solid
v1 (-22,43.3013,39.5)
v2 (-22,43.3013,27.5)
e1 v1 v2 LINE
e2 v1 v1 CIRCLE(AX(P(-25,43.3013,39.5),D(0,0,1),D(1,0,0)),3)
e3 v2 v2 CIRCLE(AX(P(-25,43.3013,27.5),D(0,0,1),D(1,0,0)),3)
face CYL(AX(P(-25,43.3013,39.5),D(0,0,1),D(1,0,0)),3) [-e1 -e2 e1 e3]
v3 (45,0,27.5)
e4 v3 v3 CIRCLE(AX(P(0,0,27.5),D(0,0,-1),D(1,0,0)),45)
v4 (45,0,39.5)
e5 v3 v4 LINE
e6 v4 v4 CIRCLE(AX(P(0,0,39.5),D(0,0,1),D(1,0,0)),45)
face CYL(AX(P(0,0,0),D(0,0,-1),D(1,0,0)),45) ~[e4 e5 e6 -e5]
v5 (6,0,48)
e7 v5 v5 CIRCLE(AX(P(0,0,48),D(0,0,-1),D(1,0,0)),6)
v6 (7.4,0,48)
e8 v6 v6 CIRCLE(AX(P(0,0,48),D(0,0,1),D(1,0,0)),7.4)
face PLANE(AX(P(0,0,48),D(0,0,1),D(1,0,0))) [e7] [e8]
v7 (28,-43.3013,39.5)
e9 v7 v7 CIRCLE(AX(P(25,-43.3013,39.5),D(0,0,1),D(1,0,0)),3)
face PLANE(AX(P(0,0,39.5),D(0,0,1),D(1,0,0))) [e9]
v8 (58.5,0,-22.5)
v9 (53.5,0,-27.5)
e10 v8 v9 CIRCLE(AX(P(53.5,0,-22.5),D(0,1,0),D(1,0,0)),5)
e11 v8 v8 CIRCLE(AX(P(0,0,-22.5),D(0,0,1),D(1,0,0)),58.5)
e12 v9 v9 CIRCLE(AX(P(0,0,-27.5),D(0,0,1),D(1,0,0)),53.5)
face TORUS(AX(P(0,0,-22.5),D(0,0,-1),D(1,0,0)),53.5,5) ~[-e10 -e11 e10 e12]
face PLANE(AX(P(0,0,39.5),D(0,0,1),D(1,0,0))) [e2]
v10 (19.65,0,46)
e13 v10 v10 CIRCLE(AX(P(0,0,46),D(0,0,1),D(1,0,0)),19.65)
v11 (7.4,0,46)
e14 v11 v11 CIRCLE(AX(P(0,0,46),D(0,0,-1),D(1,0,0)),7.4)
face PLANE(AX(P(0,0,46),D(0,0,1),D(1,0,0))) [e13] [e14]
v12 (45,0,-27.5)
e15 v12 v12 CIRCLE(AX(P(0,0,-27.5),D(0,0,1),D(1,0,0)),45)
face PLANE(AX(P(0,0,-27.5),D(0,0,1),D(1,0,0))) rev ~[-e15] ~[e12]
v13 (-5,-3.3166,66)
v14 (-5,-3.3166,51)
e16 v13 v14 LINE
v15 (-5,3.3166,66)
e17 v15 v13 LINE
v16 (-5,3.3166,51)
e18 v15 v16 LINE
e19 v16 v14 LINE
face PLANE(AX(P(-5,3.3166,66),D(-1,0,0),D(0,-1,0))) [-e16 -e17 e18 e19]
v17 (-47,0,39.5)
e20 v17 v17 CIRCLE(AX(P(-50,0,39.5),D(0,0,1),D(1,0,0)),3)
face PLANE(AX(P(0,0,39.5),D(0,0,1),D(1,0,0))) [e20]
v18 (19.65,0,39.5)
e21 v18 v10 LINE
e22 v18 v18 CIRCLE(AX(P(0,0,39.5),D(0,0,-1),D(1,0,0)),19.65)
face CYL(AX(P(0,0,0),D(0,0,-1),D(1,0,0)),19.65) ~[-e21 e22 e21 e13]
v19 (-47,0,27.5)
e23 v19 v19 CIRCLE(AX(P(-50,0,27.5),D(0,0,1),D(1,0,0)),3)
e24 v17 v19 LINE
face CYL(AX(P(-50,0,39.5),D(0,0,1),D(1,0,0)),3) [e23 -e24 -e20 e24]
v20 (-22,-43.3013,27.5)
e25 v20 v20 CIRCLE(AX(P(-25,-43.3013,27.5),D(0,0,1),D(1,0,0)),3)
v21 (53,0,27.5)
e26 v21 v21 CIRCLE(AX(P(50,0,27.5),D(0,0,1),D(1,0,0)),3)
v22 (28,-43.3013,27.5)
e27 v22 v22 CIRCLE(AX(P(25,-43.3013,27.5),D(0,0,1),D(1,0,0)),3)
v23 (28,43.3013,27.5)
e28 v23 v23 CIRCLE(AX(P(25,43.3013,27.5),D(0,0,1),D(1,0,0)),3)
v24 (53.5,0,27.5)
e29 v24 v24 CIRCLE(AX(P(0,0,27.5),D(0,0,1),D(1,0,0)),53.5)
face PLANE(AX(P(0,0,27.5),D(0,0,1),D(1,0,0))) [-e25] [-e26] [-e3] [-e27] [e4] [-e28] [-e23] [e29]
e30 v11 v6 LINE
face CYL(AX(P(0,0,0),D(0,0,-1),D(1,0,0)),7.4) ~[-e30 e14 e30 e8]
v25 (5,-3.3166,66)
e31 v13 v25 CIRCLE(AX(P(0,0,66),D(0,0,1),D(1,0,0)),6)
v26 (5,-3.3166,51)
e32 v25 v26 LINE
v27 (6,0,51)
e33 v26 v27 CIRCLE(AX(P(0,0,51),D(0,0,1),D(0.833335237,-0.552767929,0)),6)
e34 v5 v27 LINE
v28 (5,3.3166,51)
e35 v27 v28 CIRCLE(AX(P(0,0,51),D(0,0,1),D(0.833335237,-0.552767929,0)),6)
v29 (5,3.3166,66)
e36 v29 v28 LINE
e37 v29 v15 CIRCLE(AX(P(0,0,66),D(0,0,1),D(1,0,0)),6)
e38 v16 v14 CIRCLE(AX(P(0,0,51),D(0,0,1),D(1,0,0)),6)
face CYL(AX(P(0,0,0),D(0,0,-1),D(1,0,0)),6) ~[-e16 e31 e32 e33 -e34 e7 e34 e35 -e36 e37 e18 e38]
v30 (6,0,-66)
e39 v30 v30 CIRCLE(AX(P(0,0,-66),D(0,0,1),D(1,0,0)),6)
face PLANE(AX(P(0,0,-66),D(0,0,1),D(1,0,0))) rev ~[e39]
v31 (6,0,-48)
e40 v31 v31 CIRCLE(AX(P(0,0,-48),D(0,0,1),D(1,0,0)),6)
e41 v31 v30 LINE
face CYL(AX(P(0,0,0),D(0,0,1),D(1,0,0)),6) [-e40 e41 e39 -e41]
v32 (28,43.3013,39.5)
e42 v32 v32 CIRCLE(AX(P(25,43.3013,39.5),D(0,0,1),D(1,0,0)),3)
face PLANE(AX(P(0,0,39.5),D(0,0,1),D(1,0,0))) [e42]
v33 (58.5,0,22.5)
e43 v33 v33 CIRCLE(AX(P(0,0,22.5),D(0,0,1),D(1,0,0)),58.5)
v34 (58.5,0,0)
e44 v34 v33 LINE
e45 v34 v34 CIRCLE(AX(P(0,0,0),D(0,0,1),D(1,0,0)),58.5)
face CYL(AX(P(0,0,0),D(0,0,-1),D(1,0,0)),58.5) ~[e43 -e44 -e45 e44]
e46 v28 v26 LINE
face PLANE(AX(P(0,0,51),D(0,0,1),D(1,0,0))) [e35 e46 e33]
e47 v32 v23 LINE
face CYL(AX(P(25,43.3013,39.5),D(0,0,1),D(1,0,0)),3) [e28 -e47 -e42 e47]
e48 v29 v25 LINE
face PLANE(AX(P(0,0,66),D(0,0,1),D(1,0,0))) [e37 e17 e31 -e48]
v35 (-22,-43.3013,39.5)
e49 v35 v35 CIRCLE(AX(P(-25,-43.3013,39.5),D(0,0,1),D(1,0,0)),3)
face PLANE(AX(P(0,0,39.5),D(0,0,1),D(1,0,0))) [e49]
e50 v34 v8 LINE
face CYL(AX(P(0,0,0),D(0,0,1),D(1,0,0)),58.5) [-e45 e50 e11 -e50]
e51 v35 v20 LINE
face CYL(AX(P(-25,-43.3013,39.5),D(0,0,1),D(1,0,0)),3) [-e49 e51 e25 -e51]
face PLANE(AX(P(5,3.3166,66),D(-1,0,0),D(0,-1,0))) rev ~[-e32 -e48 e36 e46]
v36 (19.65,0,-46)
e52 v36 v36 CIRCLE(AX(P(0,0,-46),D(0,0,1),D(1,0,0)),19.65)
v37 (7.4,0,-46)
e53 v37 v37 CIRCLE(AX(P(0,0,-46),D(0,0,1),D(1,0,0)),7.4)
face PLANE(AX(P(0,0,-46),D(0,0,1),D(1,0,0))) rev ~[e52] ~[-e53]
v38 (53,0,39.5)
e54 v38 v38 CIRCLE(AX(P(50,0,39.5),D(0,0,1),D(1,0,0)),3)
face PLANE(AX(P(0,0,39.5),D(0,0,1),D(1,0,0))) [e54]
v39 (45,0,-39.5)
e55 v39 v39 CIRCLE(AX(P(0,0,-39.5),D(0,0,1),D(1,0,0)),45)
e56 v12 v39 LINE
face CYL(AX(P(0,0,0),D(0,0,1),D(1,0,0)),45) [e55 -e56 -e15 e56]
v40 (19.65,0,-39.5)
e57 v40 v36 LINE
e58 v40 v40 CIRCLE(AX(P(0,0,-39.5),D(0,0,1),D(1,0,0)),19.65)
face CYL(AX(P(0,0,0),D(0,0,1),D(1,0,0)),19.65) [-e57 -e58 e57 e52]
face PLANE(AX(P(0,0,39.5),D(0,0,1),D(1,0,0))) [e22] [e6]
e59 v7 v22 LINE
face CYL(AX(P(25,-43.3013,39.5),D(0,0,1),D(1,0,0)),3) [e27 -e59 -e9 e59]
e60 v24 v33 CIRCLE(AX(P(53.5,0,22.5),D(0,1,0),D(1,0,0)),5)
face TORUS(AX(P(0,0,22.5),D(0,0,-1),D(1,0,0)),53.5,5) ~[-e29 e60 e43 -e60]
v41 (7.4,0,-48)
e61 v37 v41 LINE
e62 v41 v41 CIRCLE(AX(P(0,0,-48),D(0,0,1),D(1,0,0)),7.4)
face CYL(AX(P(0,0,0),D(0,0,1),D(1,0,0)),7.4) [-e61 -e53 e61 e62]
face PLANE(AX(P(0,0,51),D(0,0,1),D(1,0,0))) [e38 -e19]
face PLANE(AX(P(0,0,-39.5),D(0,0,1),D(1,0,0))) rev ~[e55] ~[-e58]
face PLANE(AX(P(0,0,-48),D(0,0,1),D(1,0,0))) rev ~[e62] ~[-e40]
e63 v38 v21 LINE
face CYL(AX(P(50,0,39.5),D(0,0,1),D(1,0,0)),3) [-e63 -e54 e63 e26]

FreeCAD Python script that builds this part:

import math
import FreeCAD as App
import Part
import Sketcher


def edges_at(feature, points):
    """Names of the edges that pass closest to the given points."""
    edges = feature.Shape.Edges
    near = lambda p: min(range(len(edges)), key=lambda i: edges[i].distToShape(Part.Vertex(*p))[0])
    return sorted({f"Edge{near(p) + 1}" for p in points})

doc = App.newDocument("Part")
params = doc.addObject("Spreadsheet::Sheet", "Params")
for row, (alias, value) in enumerate([
    ("sketch1_diameter", "12 mm"),
    ("pad1_length", "132 mm"),
    ("sketch2_diameter", "14.8 mm"),
    ("pad2_length", "96 mm"),
    ("sketch3_diameter", "39.3 mm"),
    ("sketch3_diameter2", "12 mm"),
    ("pad3_length", "92 mm"),
    ("sketch4_diameter", "90 mm"),
    ("pad4_length", "79 mm"),
    ("sketch5_diameter", "117 mm"),
    ("pad5_length", "55 mm"),
    ("fillet_radius", "5 mm"),
    ("sketch6_diameter", "6 mm"),
    ("pad6_length", "12 mm"),
    ("sketch7_radius", "6 mm"),
    ("pocket1_length", "15 mm"),
], start=1):
    params.set(f"A{row}", alias)
    params.set(f"B{row}", "=" + value)
    params.setAlias(f"B{row}", alias)

body = doc.addObject("PartDesign::Body", "Body")

# Sketch on XY plane
sketch1 = body.newObject("Sketcher::SketchObject", "Sketch")
sketch1.AttachmentSupport = (doc.getObject("XY_Plane"), [""])
sketch1.MapMode = "FlatFace"
sketch1.addGeometry(Part.Circle(App.Vector(0, 0, 0), App.Vector(0, 0, 1), 6), False)
sketch1.addConstraint(Sketcher.Constraint("Coincident", 0, 3, -1, 1))
sketch1.addConstraint(Sketcher.Constraint("Diameter", 0, 12.0))
sketch1.setExpression("Constraints[1]", "Params.sketch1_diameter")
pad1 = body.newObject("PartDesign::Pad", "Pad")
pad1.Profile = sketch1
pad1.setExpression("Length", "Params.pad1_length")
pad1.Midplane = True

# Sketch on XY plane
sketch2 = body.newObject("Sketcher::SketchObject", "Sketch001")
sketch2.AttachmentSupport = (doc.getObject("XY_Plane"), [""])
sketch2.MapMode = "FlatFace"
sketch2.addGeometry(Part.Circle(App.Vector(0, 0, 0), App.Vector(0, 0, 1), 7), False)
sketch2.addConstraint(Sketcher.Constraint("Coincident", 0, 3, -1, 1))
sketch2.addConstraint(Sketcher.Constraint("Diameter", 0, 14.8))
sketch2.setExpression("Constraints[1]", "Params.sketch2_diameter")
pad2 = body.newObject("PartDesign::Pad", "Pad001")
pad2.Profile = sketch2
pad2.setExpression("Length", "Params.pad2_length")
pad2.Midplane = True

# Sketch on XY plane
sketch3 = body.newObject("Sketcher::SketchObject", "Sketch002")
sketch3.AttachmentSupport = (doc.getObject("XY_Plane"), [""])
sketch3.MapMode = "FlatFace"
sketch3.addGeometry(Part.Circle(App.Vector(0, 0, 0), App.Vector(0, 0, 1), 20), False)
sketch3.addGeometry(Part.Circle(App.Vector(0, 0, 0), App.Vector(0, 0, 1), 6), False)
sketch3.addConstraint(Sketcher.Constraint("Coincident", 0, 3, -1, 1))
sketch3.addConstraint(Sketcher.Constraint("Coincident", 1, 3, -1, 1))
sketch3.addConstraint(Sketcher.Constraint("Diameter", 0, 39.3))
sketch3.addConstraint(Sketcher.Constraint("Diameter", 1, 12.0))
sketch3.setExpression("Constraints[2]", "Params.sketch3_diameter")
sketch3.setExpression("Constraints[3]", "Params.sketch3_diameter2")
pad3 = body.newObject("PartDesign::Pad", "Pad002")
pad3.Profile = sketch3
pad3.setExpression("Length", "Params.pad3_length")
pad3.Midplane = True

# Sketch on XY plane
sketch4 = body.newObject("Sketcher::SketchObject", "Sketch003")
sketch4.AttachmentSupport = (doc.getObject("XY_Plane"), [""])
sketch4.MapMode = "FlatFace"
sketch4.addGeometry(Part.Circle(App.Vector(0, 0, 0), App.Vector(0, 0, 1), 45), False)
sketch4.addConstraint(Sketcher.Constraint("Coincident", 0, 3, -1, 1))
sketch4.addConstraint(Sketcher.Constraint("Diameter", 0, 90.0))
sketch4.setExpression("Constraints[1]", "Params.sketch4_diameter")
pad4 = body.newObject("PartDesign::Pad", "Pad003")
pad4.Profile = sketch4
pad4.setExpression("Length", "Params.pad4_length")
pad4.Midplane = True

# Sketch on XY plane
sketch5 = body.newObject("Sketcher::SketchObject", "Sketch004")
sketch5.AttachmentSupport = (doc.getObject("XY_Plane"), [""])
sketch5.MapMode = "FlatFace"
sketch5.addGeometry(Part.Circle(App.Vector(0, 0, 0), App.Vector(0, 0, 1), 58), False)
sketch5.addConstraint(Sketcher.Constraint("Coincident", 0, 3, -1, 1))
sketch5.addConstraint(Sketcher.Constraint("Diameter", 0, 117.0))
sketch5.setExpression("Constraints[1]", "Params.sketch5_diameter")
pad5 = body.newObject("PartDesign::Pad", "Pad004")
pad5.Profile = sketch5
pad5.setExpression("Length", "Params.pad5_length")
pad5.Midplane = True
doc.recompute()

fillet = body.newObject("PartDesign::Fillet", "Fillet")
fillet.Base = (pad5, edges_at(pad5, [(-58.5, 0, 27.5), (-58.5, 0, -27.5)]))
fillet.setExpression("Radius", "Params.fillet_radius")

# Sketch on XY plane
sketch6 = body.newObject("Sketcher::SketchObject", "Sketch005")
sketch6.AttachmentSupport = (doc.getObject("XY_Plane"), [""])
sketch6.MapMode = "FlatFace"
sketch6.AttachmentOffset = App.Placement(App.Vector(0, 0, 39.5), App.Rotation())
sketch6.addGeometry(Part.Circle(App.Vector(50, 0, 0), App.Vector(0, 0, 1), 3), False)
sketch6.addGeometry(Part.Circle(App.Vector(25, 43.3, 0), App.Vector(0, 0, 1), 3), False)
sketch6.addGeometry(Part.Circle(App.Vector(-25, 43.3, 0), App.Vector(0, 0, 1), 3), False)
sketch6.addGeometry(Part.Circle(App.Vector(-50, 0, 0), App.Vector(0, 0, 1), 3), False)
sketch6.addGeometry(Part.Circle(App.Vector(-25, -43.3, 0), App.Vector(0, 0, 1), 3), False)
sketch6.addGeometry(Part.Circle(App.Vector(25, -43.3, 0), App.Vector(0, 0, 1), 3), False)
sketch6.addConstraint(Sketcher.Constraint("Equal", 0, 1))
sketch6.addConstraint(Sketcher.Constraint("Equal", 1, 2))
sketch6.addConstraint(Sketcher.Constraint("Equal", 2, 3))
sketch6.addConstraint(Sketcher.Constraint("Equal", 3, 4))
sketch6.addConstraint(Sketcher.Constraint("Equal", 4, 5))
sketch6.addConstraint(Sketcher.Constraint("Symmetric", 0, 3, 3, 3, -1, 1))
sketch6.addConstraint(Sketcher.Constraint("Symmetric", 1, 3, 4, 3, -1, 1))
sketch6.addConstraint(Sketcher.Constraint("Symmetric", 2, 3, 5, 3, -1, 1))
sketch6.addConstraint(Sketcher.Constraint("Symmetric", 1, 3, 2, 3, -2))
sketch6.addConstraint(Sketcher.Constraint("PointOnObject", 0, 3, -1))
sketch6.addConstraint(Sketcher.Constraint("Diameter", 0, 6.0))
sketch6.addConstraint(Sketcher.Constraint("DistanceX", 3, 3, 0, 3, 100.0))
sketch6.addConstraint(Sketcher.Constraint("DistanceX", -1, 1, 1, 3, 25.0))
sketch6.addConstraint(Sketcher.Constraint("DistanceY", -1, 1, 1, 3, 43.3013))
sketch6.setExpression("Constraints[10]", "Params.sketch6_diameter")
pad6 = body.newObject("PartDesign::Pad", "Pad005")
pad6.Profile = sketch6
pad6.setExpression("Length", "Params.pad6_length")
pad6.Reversed = True

# Sketch on XY plane
sketch7 = body.newObject("Sketcher::SketchObject", "Sketch006")
sketch7.AttachmentSupport = (doc.getObject("XY_Plane"), [""])
sketch7.MapMode = "FlatFace"
sketch7.AttachmentOffset = App.Placement(App.Vector(0, 0, 66), App.Rotation())
sketch7.addGeometry(Part.ArcOfCircle(Part.Circle(App.Vector(0, 0, 0), App.Vector(0, 0, 1), 6), math.radians(-34), math.radians(34)), False)
sketch7.addGeometry(Part.LineSegment(App.Vector(5, -3, 0), App.Vector(5, 3, 0)), False)
sketch7.addGeometry(Part.LineSegment(App.Vector(-5, -3, 0), App.Vector(-5, 3, 0)), False)
sketch7.addGeometry(Part.ArcOfCircle(Part.Circle(App.Vector(0, 0, 0), App.Vector(0, 0, 1), 6), math.radians(146), math.radians(214)), False)
sketch7.addConstraint(Sketcher.Constraint("Coincident", 0, 1, 1, 1))
sketch7.addConstraint(Sketcher.Constraint("Coincident", 1, 2, 0, 2))
sketch7.addConstraint(Sketcher.Constraint("Coincident", 2, 1, 3, 2))
sketch7.addConstraint(Sketcher.Constraint("Coincident", 3, 1, 2, 2))
sketch7.addConstraint(Sketcher.Constraint("Vertical", 1))
sketch7.addConstraint(Sketcher.Constraint("Vertical", 2))
sketch7.addConstraint(Sketcher.Constraint("Coincident", 0, 3, -1, 1))
sketch7.addConstraint(Sketcher.Constraint("Coincident", 3, 3, -1, 1))
sketch7.addConstraint(Sketcher.Constraint("Equal", 0, 3))
sketch7.addConstraint(Sketcher.Constraint("Horizontal", 0, 1, 2, 1))
sketch7.addConstraint(Sketcher.Constraint("DistanceX", -1, 1, 0, 1, 5.0))
sketch7.addConstraint(Sketcher.Constraint("Radius", 0, 6.0))
sketch7.setExpression("Constraints[11]", "Params.sketch7_radius")
pocket1 = body.newObject("PartDesign::Pocket", "Pocket")
pocket1.Profile = sketch7
pocket1.setExpression("Length", "Params.pocket1_length")

doc.recompute()
